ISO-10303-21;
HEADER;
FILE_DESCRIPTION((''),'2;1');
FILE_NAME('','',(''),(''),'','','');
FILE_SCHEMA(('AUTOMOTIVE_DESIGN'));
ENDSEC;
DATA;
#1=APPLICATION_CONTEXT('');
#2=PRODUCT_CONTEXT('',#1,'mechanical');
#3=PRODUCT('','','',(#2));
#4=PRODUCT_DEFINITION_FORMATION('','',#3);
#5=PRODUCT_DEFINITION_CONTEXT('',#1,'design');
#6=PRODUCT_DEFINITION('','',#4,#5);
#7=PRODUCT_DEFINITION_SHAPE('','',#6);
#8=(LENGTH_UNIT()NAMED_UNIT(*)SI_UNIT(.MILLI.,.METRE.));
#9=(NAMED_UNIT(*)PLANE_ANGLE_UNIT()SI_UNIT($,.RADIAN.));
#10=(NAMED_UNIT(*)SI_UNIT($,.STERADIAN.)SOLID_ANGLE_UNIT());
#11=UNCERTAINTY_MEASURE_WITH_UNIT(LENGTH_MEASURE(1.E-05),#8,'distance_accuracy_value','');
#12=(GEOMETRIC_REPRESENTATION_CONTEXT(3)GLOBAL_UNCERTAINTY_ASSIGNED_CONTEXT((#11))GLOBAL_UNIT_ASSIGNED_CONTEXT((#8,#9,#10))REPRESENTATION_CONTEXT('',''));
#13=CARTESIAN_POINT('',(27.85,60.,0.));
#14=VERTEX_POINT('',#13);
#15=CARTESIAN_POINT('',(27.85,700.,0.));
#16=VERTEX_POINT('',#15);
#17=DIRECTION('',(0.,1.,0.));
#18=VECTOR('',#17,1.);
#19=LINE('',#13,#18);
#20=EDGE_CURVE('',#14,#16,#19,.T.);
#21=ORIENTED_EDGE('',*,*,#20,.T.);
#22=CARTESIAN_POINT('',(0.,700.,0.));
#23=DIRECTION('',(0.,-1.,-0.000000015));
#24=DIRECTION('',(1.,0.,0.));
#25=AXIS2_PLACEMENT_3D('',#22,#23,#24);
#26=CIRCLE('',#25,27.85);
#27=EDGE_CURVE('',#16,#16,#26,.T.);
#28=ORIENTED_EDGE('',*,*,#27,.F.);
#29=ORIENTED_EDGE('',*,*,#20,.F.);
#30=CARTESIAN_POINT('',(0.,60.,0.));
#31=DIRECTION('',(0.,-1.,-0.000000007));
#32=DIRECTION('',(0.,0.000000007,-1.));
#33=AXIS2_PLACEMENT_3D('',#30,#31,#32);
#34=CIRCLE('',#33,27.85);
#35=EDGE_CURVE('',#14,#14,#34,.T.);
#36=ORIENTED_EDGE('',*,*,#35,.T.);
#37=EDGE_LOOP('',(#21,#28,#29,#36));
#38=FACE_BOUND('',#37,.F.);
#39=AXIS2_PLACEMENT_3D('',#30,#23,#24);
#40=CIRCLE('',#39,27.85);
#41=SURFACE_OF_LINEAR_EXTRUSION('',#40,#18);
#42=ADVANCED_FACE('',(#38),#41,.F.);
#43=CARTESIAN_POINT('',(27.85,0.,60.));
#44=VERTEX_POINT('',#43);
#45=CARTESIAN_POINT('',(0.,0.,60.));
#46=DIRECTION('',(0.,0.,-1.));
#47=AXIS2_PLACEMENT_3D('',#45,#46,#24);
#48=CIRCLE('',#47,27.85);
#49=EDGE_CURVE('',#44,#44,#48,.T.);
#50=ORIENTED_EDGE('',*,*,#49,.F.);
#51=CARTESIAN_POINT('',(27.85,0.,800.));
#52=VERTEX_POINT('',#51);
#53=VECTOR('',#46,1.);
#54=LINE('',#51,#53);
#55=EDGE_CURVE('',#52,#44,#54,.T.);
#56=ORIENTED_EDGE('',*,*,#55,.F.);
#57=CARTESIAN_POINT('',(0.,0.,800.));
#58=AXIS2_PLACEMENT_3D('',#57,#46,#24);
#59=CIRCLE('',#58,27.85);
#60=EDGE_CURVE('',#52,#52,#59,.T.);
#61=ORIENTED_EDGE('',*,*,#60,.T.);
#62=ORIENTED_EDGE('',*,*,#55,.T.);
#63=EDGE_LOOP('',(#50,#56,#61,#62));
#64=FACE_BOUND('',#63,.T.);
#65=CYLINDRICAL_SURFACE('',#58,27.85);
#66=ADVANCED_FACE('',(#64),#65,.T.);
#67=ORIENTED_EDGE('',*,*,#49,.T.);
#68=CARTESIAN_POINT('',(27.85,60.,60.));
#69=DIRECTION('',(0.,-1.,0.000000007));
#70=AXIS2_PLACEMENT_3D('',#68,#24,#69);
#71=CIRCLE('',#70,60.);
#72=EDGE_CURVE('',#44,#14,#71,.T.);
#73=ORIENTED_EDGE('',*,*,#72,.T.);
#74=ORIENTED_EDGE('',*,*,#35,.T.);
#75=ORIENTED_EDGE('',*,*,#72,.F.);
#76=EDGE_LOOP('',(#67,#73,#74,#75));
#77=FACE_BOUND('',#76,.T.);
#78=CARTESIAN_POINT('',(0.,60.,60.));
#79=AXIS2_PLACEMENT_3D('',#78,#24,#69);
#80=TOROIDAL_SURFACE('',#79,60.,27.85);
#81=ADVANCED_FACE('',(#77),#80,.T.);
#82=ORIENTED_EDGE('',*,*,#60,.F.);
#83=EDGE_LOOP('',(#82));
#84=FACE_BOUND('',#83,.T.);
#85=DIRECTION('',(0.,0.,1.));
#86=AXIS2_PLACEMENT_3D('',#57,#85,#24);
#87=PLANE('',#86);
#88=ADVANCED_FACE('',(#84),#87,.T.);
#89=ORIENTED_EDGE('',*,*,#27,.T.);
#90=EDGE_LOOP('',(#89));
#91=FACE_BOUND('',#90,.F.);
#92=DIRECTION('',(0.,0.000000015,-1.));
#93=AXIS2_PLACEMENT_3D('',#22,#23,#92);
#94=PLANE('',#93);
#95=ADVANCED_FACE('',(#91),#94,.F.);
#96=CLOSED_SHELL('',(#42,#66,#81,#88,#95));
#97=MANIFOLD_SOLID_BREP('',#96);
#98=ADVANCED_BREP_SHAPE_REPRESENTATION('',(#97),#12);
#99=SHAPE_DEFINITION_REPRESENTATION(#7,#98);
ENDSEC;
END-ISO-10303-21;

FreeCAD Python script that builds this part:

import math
import FreeCAD as App
import Part
import Sketcher
from FreeCAD import Vector
Q = App.Units.Quantity

doc = App.newDocument("Part")
body = doc.addObject("PartDesign::Body", "Body")

sketch1 = body.newObject("Sketcher::SketchObject", "Sketch")
sketch1.AttachmentSupport = (doc.getObject("XY_Plane"), [""])
sketch1.MapMode = "FlatFace"
sketch1.AttachmentOffset = App.Placement(Vector(0, 0, 800), App.Rotation())
sketch1.addGeometry(Part.Circle(Vector(0, 0, 0), Vector(0, 0, 1), 28), False)
sketch1.addConstraint([
    Sketcher.Constraint("Coincident", 0, 3, -1, 1),
    Sketcher.Constraint("Diameter", 0, Q("55.7 mm")),
])

sketch2 = body.newObject("Sketcher::SketchObject", "Sketch001")
sketch2.AttachmentSupport = (doc.getObject("YZ_Plane"), [""])
sketch2.MapMode = "FlatFace"
sketch2.addGeometry([
    Part.LineSegment(Vector(0, 800, 0), Vector(0, 60, 0)),
    Part.ArcOfCircle(Part.Circle(Vector(60, 60, 0), Vector(0, 0, 1), 60), math.radians(180), math.radians(270)),
    Part.LineSegment(Vector(60, 0, 0), Vector(700, 0, 0)),
], False)
sketch2.addConstraint([
    Sketcher.Constraint("Tangent", 0, 2, 1, 1),
    Sketcher.Constraint("Tangent", 1, 2, 2, 1),
    Sketcher.Constraint("Vertical", 0),
    Sketcher.Constraint("Horizontal", 2),
    Sketcher.Constraint("PointOnObject", 0, 1, -2),
    Sketcher.Constraint("PointOnObject", 1, 2, -1),
    Sketcher.Constraint("Radius", 1, Q("60 mm")),
    Sketcher.Constraint("DistanceX", 2, 1, 2, 2, Q("640 mm")),
    Sketcher.Constraint("DistanceY", 0, 2, 0, 1, Q("740 mm")),
])
doc.recompute()

additivepipe = body.newObject("PartDesign::AdditivePipe", "AdditivePipe")
additivepipe.Profile = sketch1
additivepipe.Spine = (sketch2, ["Edge1", "Edge2", "Edge3"])

doc.recompute()
